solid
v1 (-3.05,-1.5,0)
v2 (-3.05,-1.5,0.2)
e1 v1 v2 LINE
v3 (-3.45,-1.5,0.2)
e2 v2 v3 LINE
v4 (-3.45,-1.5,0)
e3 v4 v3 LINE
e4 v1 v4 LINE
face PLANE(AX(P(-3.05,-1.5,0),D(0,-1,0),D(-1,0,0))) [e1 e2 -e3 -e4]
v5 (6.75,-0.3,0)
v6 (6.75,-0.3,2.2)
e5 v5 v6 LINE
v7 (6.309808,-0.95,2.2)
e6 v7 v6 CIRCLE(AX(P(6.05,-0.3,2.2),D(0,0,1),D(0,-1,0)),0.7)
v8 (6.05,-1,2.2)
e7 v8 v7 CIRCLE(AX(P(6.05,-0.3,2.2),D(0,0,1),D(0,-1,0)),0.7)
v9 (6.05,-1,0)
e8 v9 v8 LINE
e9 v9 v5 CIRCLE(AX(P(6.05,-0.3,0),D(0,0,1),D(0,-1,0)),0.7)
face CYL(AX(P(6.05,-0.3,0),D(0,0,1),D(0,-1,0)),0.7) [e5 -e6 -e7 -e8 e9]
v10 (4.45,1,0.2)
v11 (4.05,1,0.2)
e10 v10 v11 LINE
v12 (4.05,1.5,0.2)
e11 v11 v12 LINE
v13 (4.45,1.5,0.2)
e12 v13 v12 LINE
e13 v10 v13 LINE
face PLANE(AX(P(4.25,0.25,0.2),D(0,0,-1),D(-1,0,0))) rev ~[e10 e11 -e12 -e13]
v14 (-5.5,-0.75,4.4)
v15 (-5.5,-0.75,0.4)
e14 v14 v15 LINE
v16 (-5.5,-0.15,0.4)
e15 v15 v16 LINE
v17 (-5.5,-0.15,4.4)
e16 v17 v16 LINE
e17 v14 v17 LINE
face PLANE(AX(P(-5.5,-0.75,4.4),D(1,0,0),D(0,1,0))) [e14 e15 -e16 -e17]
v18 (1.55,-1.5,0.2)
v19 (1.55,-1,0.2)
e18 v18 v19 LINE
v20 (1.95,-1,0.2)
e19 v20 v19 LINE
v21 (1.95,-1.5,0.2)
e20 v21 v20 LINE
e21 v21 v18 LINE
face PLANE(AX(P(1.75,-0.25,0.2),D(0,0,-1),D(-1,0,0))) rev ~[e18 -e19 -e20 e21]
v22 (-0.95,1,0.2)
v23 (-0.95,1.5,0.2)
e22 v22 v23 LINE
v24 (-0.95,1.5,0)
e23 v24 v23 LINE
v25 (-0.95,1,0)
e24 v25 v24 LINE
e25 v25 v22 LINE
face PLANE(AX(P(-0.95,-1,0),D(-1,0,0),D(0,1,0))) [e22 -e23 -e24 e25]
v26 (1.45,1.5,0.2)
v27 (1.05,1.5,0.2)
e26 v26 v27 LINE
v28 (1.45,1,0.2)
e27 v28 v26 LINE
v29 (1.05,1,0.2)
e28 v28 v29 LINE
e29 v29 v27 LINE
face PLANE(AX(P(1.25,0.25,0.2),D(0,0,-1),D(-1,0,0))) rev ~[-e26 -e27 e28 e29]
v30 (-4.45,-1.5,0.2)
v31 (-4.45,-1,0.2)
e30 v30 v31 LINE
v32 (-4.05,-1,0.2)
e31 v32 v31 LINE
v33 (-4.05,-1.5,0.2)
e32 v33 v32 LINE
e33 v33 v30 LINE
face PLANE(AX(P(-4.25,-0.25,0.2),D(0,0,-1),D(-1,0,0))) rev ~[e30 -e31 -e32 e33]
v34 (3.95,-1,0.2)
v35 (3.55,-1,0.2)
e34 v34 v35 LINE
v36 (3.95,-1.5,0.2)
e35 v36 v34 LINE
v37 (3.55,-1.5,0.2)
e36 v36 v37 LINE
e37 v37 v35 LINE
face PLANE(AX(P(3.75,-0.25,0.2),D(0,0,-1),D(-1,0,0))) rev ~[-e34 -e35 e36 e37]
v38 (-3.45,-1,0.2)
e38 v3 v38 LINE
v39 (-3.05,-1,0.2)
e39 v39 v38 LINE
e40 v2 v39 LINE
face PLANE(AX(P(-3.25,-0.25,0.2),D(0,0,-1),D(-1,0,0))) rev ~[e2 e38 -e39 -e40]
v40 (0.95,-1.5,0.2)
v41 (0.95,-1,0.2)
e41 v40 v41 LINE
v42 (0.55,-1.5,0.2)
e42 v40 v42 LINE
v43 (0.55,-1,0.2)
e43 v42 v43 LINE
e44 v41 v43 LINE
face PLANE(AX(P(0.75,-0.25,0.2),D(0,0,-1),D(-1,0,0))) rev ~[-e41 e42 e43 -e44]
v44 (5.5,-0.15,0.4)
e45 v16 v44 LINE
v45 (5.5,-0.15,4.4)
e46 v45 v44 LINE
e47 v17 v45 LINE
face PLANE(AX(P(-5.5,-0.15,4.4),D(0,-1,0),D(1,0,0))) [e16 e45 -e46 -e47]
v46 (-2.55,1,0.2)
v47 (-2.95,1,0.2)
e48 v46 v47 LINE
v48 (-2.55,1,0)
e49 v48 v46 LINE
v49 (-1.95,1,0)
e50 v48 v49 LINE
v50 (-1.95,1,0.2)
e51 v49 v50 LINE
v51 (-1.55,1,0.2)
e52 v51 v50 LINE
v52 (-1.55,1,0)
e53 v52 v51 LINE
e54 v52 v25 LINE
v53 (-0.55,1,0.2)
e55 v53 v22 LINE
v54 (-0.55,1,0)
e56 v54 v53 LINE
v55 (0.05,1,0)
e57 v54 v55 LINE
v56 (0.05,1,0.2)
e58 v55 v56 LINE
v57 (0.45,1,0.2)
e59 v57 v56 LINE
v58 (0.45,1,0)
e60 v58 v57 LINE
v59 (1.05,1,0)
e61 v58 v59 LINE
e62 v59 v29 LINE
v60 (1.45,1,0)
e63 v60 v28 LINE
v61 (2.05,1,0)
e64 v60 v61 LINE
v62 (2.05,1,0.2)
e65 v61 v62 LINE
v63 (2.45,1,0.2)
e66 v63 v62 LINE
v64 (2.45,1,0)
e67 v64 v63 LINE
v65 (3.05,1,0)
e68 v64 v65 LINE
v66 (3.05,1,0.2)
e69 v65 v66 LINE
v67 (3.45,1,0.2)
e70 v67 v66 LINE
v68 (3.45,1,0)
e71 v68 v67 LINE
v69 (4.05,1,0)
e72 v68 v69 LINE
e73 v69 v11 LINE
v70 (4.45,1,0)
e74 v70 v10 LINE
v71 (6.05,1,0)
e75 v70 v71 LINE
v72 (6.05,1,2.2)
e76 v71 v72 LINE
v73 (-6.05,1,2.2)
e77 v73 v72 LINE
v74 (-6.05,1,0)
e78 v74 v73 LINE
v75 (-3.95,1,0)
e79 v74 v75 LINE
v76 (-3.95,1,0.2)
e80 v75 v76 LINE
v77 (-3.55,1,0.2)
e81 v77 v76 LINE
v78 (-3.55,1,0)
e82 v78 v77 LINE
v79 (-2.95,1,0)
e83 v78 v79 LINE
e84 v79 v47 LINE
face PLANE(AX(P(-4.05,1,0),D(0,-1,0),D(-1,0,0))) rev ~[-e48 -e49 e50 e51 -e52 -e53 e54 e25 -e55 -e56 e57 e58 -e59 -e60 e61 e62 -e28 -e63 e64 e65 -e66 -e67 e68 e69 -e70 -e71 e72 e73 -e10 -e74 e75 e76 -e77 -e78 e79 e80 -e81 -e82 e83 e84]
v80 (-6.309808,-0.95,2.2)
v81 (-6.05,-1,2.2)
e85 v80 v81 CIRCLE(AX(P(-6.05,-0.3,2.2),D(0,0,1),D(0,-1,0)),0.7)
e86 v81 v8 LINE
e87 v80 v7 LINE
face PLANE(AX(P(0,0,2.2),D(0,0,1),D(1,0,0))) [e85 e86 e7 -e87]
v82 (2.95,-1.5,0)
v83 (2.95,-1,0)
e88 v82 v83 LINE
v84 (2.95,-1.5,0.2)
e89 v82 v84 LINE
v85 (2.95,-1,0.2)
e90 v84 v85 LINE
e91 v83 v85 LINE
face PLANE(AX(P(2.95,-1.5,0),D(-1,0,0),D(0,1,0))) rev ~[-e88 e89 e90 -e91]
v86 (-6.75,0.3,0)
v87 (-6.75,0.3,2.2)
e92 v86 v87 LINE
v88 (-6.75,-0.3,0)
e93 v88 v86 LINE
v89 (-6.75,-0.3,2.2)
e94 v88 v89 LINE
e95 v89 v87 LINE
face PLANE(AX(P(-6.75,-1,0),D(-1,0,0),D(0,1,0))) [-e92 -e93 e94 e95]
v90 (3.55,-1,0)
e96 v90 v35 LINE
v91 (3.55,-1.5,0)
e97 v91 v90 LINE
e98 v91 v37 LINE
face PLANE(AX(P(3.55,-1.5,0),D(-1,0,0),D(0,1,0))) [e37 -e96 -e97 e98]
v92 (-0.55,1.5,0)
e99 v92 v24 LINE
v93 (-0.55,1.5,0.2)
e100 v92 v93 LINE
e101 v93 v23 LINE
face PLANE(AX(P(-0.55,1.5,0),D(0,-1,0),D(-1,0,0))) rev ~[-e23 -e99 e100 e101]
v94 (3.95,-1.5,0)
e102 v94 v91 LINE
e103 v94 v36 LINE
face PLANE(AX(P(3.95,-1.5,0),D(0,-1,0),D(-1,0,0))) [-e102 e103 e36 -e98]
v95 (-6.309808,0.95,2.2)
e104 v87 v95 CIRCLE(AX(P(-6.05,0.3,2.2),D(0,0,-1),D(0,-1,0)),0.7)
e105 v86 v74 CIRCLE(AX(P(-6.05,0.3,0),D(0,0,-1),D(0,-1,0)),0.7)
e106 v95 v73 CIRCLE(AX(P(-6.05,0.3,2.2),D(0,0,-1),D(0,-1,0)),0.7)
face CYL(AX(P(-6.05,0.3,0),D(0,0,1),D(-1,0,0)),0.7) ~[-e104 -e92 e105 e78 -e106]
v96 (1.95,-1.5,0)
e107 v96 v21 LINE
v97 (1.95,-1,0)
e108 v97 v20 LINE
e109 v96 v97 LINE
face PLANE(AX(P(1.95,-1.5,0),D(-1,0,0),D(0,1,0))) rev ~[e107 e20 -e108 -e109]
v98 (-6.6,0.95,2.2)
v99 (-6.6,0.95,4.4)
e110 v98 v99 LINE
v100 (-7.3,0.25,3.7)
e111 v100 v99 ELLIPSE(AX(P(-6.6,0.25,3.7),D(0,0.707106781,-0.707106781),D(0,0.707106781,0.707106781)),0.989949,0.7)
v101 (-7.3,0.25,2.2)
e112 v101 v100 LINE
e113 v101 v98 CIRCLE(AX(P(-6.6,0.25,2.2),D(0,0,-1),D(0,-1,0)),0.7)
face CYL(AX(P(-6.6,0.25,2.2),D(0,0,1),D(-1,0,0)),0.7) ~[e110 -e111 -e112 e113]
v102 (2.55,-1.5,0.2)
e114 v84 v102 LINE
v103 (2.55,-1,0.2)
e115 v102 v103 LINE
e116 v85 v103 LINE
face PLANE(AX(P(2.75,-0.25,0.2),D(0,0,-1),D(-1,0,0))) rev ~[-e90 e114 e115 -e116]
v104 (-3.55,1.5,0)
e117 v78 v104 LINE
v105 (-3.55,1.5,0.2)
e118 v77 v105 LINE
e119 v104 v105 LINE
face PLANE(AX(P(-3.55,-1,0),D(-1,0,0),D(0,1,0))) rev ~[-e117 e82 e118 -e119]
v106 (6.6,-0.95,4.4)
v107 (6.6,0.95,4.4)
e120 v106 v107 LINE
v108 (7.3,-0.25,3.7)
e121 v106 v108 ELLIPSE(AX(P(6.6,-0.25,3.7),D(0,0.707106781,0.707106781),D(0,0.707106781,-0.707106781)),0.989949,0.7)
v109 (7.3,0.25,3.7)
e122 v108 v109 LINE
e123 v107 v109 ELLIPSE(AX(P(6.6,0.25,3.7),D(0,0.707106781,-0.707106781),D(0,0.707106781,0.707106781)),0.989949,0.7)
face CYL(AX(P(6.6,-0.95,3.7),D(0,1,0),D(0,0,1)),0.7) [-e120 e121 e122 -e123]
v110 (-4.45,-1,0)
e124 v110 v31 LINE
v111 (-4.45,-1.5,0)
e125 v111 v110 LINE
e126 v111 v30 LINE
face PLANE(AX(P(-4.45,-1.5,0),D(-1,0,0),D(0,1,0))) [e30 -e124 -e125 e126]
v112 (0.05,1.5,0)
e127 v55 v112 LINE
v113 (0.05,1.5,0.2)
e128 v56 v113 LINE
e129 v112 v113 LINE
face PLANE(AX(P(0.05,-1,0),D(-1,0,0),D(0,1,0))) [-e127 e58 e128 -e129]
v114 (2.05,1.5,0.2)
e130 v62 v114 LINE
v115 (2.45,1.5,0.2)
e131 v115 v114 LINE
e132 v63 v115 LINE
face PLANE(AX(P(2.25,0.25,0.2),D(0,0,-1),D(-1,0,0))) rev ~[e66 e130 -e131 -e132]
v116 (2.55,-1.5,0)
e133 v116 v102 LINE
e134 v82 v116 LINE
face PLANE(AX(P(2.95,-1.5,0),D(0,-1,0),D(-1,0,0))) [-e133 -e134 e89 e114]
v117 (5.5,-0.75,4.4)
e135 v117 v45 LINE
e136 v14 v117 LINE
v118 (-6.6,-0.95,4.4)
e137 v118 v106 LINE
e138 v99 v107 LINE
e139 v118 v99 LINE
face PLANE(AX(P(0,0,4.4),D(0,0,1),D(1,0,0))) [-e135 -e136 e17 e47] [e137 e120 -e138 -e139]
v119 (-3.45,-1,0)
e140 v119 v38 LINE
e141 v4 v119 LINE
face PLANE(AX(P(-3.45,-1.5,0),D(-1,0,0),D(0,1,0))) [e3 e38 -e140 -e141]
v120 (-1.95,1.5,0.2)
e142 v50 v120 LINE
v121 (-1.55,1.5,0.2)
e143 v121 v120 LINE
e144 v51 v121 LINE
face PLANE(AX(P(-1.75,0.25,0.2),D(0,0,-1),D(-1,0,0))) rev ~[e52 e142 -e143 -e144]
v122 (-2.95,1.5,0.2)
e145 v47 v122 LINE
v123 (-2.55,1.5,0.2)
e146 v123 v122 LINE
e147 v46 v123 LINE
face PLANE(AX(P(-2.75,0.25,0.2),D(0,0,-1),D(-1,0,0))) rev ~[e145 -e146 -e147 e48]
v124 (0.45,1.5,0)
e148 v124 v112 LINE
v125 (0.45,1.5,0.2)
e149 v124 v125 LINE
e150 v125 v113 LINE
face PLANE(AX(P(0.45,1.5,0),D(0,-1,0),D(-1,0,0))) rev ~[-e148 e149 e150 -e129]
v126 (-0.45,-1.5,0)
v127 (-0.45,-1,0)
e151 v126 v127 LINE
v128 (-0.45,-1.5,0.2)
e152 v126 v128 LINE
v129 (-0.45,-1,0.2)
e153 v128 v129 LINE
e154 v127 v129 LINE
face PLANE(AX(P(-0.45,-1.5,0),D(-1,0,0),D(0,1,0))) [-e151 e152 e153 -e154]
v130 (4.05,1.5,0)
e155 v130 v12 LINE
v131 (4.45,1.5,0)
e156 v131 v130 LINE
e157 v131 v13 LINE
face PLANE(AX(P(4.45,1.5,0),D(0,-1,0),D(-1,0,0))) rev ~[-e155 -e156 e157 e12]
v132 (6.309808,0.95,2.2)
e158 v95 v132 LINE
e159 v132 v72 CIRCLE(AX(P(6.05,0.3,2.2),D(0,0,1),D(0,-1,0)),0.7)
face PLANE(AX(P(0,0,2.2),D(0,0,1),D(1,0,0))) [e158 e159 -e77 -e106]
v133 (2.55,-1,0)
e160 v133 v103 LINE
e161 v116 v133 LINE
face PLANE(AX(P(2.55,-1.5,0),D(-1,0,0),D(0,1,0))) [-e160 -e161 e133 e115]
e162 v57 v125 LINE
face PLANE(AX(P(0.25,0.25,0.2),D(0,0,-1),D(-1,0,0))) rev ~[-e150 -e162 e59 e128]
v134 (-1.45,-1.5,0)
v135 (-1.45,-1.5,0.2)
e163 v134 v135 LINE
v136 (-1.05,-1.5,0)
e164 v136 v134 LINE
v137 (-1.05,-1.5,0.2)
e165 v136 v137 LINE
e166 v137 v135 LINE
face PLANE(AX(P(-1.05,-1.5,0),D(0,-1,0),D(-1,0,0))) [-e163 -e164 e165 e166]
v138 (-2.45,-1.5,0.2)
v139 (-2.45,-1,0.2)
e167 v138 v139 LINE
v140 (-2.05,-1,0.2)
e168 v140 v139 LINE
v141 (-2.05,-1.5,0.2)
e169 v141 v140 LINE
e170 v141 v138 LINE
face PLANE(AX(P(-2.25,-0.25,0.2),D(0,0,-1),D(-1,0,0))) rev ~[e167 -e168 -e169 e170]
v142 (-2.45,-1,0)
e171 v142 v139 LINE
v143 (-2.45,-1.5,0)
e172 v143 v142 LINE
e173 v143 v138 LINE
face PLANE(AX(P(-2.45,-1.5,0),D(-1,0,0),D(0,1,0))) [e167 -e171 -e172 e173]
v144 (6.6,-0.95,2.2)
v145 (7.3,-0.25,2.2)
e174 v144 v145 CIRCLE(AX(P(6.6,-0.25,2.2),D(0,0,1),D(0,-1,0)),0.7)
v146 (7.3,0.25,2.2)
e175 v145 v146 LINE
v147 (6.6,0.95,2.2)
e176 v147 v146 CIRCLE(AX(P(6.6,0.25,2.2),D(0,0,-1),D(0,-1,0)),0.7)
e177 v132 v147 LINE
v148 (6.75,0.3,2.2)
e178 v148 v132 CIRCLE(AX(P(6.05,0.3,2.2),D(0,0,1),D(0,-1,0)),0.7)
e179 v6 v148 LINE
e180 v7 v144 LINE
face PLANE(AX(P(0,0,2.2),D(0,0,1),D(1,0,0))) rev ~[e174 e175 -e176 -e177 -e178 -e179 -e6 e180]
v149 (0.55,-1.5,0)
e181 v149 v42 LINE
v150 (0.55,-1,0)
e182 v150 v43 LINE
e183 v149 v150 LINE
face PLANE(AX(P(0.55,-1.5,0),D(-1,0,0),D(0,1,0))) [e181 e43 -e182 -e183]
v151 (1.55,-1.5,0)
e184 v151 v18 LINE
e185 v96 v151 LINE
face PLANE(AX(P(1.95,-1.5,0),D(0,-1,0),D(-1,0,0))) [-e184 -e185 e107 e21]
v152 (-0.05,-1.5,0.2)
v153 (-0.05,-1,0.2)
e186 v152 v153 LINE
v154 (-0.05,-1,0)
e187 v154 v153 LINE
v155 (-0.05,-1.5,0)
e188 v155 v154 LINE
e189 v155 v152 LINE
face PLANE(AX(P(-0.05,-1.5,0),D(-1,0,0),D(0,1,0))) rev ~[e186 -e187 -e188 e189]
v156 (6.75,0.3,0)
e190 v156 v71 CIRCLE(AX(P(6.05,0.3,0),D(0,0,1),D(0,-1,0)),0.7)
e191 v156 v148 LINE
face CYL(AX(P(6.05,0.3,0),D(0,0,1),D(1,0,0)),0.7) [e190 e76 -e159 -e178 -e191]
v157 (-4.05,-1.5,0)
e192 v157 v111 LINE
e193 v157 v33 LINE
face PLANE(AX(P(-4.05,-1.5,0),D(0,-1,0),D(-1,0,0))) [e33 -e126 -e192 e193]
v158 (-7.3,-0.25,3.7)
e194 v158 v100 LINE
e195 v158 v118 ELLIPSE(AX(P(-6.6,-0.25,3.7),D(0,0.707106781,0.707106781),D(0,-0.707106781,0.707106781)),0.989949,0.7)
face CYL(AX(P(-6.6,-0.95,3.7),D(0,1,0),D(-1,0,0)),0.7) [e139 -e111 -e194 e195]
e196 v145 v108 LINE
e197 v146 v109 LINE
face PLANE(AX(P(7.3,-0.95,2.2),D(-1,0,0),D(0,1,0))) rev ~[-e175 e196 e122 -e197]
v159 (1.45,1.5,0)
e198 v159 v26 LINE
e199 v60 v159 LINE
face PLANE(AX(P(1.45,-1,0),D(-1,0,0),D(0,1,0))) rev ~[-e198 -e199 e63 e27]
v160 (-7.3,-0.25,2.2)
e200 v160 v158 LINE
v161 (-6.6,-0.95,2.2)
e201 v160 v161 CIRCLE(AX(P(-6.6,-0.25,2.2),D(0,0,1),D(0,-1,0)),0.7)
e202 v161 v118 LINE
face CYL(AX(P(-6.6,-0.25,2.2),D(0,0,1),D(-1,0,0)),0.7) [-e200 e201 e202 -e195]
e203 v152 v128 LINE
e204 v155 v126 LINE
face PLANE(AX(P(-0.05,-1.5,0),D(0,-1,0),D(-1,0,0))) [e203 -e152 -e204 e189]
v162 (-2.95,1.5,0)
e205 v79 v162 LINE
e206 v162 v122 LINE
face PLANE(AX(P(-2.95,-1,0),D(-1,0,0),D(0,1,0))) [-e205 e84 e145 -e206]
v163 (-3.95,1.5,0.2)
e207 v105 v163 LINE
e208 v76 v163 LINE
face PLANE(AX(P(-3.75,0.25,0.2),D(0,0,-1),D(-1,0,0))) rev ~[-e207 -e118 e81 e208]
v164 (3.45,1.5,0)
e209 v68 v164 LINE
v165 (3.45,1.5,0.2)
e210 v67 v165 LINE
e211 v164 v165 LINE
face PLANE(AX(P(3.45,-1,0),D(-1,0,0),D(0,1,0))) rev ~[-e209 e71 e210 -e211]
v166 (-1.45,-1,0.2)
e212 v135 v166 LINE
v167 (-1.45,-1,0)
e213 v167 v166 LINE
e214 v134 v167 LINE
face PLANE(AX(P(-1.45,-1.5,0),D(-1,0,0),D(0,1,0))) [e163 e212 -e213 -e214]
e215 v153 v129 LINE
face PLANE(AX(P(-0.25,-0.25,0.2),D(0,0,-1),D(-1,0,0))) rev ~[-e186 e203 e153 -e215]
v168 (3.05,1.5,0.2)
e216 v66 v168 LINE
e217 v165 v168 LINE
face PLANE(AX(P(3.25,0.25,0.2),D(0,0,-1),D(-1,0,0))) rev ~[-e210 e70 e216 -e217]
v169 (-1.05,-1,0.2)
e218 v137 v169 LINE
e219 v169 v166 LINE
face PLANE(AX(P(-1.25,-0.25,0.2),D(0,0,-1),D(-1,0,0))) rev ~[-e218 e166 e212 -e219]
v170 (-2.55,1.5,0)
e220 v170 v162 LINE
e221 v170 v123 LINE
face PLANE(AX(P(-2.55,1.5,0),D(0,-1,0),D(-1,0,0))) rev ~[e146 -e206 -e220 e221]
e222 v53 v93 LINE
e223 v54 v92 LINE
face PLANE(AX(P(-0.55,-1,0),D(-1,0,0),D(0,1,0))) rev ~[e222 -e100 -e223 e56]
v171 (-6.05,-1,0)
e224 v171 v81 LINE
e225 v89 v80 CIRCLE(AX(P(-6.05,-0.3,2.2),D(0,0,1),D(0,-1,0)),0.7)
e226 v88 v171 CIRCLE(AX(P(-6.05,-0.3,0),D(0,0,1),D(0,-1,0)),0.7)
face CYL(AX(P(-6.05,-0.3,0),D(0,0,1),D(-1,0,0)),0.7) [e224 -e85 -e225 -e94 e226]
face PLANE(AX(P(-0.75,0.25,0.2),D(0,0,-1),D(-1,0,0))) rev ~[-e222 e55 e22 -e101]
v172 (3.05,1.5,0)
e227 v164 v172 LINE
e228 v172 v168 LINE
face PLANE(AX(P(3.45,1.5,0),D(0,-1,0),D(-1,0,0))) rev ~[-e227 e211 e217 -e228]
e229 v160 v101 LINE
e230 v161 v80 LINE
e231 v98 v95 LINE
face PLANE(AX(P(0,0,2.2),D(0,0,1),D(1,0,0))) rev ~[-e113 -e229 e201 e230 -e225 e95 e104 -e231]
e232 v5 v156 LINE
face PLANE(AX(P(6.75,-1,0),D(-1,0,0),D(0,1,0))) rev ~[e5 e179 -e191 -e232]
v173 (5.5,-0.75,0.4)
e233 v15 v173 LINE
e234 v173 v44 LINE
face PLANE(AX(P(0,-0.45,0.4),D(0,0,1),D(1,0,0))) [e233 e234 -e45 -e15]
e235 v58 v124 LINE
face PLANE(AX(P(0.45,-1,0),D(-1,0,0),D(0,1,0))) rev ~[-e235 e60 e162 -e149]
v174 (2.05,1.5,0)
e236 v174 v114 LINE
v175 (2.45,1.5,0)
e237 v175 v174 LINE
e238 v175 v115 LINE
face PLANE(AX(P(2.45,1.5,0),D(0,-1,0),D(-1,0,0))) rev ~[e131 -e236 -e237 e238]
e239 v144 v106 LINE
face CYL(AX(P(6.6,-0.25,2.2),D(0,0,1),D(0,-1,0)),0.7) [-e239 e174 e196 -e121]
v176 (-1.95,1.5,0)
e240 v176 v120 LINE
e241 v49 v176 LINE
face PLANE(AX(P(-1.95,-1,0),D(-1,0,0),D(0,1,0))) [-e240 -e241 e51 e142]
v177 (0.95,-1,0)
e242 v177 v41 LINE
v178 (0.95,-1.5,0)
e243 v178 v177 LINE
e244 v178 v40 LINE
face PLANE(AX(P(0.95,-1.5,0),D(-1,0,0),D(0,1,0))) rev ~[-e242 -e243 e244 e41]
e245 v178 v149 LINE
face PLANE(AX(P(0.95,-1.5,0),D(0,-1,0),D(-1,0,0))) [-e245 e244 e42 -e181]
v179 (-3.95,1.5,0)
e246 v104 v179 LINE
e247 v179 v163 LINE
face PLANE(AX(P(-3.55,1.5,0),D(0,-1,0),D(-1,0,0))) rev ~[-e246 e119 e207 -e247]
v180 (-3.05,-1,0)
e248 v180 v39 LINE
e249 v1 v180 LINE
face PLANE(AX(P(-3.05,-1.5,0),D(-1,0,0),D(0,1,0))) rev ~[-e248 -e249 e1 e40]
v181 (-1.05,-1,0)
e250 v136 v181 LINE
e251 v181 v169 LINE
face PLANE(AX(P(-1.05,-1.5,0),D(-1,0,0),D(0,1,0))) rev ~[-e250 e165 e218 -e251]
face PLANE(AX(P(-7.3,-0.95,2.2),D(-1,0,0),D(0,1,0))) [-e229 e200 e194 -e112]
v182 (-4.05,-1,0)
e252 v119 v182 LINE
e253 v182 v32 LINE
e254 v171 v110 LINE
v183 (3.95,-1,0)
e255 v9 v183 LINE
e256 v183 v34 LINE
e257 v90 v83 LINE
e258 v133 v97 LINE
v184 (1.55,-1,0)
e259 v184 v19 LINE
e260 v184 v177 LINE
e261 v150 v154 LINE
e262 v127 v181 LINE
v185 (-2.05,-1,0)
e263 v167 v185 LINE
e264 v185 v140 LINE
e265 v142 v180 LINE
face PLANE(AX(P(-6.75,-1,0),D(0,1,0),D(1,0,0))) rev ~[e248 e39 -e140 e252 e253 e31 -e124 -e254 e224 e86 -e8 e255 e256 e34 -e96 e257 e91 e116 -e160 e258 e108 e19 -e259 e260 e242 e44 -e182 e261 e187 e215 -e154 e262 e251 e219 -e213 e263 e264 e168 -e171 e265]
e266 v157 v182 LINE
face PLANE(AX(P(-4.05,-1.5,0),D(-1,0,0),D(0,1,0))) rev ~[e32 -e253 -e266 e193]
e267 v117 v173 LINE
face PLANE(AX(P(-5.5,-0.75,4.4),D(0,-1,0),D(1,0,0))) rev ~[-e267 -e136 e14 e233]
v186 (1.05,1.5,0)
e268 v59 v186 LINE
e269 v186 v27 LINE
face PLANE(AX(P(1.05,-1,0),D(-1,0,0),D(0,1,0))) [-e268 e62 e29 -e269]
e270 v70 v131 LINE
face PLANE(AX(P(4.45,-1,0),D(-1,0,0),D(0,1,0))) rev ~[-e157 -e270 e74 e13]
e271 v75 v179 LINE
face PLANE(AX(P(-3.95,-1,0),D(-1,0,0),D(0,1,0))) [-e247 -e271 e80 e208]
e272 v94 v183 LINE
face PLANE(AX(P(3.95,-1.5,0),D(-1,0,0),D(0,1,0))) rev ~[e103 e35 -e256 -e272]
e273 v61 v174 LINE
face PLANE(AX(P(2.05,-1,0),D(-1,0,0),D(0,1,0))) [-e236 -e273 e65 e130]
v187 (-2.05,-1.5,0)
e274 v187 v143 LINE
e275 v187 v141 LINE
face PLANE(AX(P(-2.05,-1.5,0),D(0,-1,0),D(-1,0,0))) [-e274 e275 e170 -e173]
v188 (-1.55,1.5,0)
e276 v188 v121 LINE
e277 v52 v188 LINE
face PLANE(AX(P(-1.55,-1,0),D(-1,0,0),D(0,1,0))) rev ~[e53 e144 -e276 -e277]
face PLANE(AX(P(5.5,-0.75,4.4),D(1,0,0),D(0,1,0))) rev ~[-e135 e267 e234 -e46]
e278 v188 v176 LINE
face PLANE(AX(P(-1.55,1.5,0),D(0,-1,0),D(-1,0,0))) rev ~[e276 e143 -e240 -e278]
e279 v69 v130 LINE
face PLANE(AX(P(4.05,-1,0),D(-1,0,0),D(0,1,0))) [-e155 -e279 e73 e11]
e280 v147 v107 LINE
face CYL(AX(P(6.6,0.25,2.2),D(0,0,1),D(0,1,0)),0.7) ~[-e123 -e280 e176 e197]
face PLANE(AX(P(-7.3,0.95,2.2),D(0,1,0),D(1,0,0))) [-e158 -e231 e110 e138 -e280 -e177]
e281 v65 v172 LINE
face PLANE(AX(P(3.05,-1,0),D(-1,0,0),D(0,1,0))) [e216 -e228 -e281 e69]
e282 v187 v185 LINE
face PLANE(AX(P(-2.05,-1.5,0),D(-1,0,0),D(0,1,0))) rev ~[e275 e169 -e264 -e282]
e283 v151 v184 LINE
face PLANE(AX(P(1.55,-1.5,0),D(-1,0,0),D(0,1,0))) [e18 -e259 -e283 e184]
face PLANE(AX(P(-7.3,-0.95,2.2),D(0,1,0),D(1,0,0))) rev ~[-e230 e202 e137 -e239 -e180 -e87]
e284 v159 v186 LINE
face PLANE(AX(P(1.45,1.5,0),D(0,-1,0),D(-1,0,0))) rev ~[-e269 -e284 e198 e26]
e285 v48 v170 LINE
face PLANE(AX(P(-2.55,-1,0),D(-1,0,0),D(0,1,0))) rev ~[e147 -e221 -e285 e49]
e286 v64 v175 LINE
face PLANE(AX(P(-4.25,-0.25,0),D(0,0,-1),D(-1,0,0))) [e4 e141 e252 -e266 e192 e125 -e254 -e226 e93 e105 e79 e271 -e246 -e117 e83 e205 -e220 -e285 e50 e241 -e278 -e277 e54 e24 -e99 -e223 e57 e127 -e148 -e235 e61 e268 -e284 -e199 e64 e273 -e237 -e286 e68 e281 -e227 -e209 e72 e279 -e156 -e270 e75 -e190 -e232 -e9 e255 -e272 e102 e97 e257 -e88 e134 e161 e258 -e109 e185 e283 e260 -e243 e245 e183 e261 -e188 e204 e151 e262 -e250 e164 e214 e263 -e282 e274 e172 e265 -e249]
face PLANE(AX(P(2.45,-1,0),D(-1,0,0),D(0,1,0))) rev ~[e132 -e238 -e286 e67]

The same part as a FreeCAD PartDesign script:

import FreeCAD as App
import Part
import Sketcher
from FreeCAD import Vector
Q = App.Units.Quantity


def edges_at(feature, points):
    """Names of the edges that pass closest to the given points."""
    edges = feature.Shape.Edges
    near = lambda p: min(range(len(edges)), key=lambda i: edges[i].distToShape(Part.Vertex(*p))[0])
    return sorted({f"Edge{near(p) + 1}" for p in points})

doc = App.newDocument("Part")
params = doc.addObject("Spreadsheet::Sheet", "Params")
for row, (alias, value) in enumerate([
    ("sketch1_height", "2 mm"),
    ("sketch1_width", "13.5 mm"),
    ("pad1_length", "2.2 mm"),
    ("fillet_radius", "0.7 mm"),
    ("sketch2_width", "14.6 mm"),
    ("sketch2_height", "1.9 mm"),
    ("pad2_length", "2.2 mm"),
    ("fillet2_radius", "0.7 mm"),
    ("sketch3_width", "11 mm"),
    ("sketch3_height", "0.6 mm"),
    ("pocket1_length", "4 mm"),
    ("sketch4_width", "0.4 mm"),
    ("sketch4_height", "2.5 mm"),
    ("pad3_length", "0.2 mm"),
], start=1):
    params.set(f"A{row}", alias)
    params.set(f"B{row}", "=" + value)
    params.setAlias(f"B{row}", alias)

body = doc.addObject("PartDesign::Body", "Body")

# Sketch on XY plane
sketch1 = body.newObject("Sketcher::SketchObject", "Sketch")
sketch1.AttachmentSupport = (doc.getObject("XY_Plane"), [""])
sketch1.MapMode = "FlatFace"
sketch1.addGeometry(Part.LineSegment(Vector(-6.75, 1, 0), Vector(-6.75, -1, 0)), False)
sketch1.addGeometry(Part.LineSegment(Vector(-6.75, -1, 0), Vector(6.75, -1, 0)), False)
sketch1.addGeometry(Part.LineSegment(Vector(6.75, -1, 0), Vector(6.75, 1, 0)), False)
sketch1.addGeometry(Part.LineSegment(Vector(6.75, 1, 0), Vector(-6.75, 1, 0)), False)
sketch1.addConstraint(Sketcher.Constraint("Coincident", 0, 2, 1, 1))
sketch1.addConstraint(Sketcher.Constraint("Coincident", 1, 2, 2, 1))
sketch1.addConstraint(Sketcher.Constraint("Coincident", 2, 2, 3, 1))
sketch1.addConstraint(Sketcher.Constraint("Coincident", 3, 2, 0, 1))
sketch1.addConstraint(Sketcher.Constraint("Vertical", 0))
sketch1.addConstraint(Sketcher.Constraint("Horizontal", 1))
sketch1.addConstraint(Sketcher.Constraint("Vertical", 2))
sketch1.addConstraint(Sketcher.Constraint("Horizontal", 3))
sketch1.addConstraint(Sketcher.Constraint("Symmetric", 0, 2, 2, 2, -1, 1))
sketch1.addConstraint(Sketcher.Constraint("DistanceY", 0, 2, 0, 1, Q("2 mm")))
sketch1.addConstraint(Sketcher.Constraint("DistanceX", 1, 1, 1, 2, Q("13.5 mm")))
sketch1.setExpression("Constraints[9]", "Params.sketch1_height")
sketch1.setExpression("Constraints[10]", "Params.sketch1_width")
pad1 = body.newObject("PartDesign::Pad", "Pad")
pad1.Profile = sketch1
pad1.setExpression("Length", "Params.pad1_length")
doc.recompute()

fillet = body.newObject("PartDesign::Fillet", "Fillet")
fillet.Base = (pad1, edges_at(pad1, [
    (6.75, -1, 1.1),
    (-6.75, -1, 1.1),
    (-6.75, 1, 1.1),
    (6.75, 1, 1.1),
]))
fillet.setExpression("Radius", "Params.fillet_radius")

# Sketch on XY plane
sketch2 = body.newObject("Sketcher::SketchObject", "Sketch001")
sketch2.AttachmentSupport = (doc.getObject("XY_Plane"), [""])
sketch2.MapMode = "FlatFace"
sketch2.AttachmentOffset = App.Placement(Vector(0, 0, 2.2), App.Rotation())
sketch2.addGeometry(Part.LineSegment(Vector(-7.3, 0.95, 0), Vector(-7.3, -0.95, 0)), False)
sketch2.addGeometry(Part.LineSegment(Vector(-7.3, -0.95, 0), Vector(7.3, -0.95, 0)), False)
sketch2.addGeometry(Part.LineSegment(Vector(7.3, -0.95, 0), Vector(7.3, 0.95, 0)), False)
sketch2.addGeometry(Part.LineSegment(Vector(7.3, 0.95, 0), Vector(-7.3, 0.95, 0)), False)
sketch2.addConstraint(Sketcher.Constraint("Coincident", 0, 2, 1, 1))
sketch2.addConstraint(Sketcher.Constraint("Coincident", 1, 2, 2, 1))
sketch2.addConstraint(Sketcher.Constraint("Coincident", 2, 2, 3, 1))
sketch2.addConstraint(Sketcher.Constraint("Coincident", 3, 2, 0, 1))
sketch2.addConstraint(Sketcher.Constraint("Vertical", 0))
sketch2.addConstraint(Sketcher.Constraint("Horizontal", 1))
sketch2.addConstraint(Sketcher.Constraint("Vertical", 2))
sketch2.addConstraint(Sketcher.Constraint("Horizontal", 3))
sketch2.addConstraint(Sketcher.Constraint("Symmetric", 0, 2, 2, 2, -1, 1))
sketch2.addConstraint(Sketcher.Constraint("DistanceX", 1, 1, 1, 2, Q("14.6 mm")))
sketch2.addConstraint(Sketcher.Constraint("DistanceY", 0, 2, 0, 1, Q("1.9 mm")))
sketch2.setExpression("Constraints[9]", "Params.sketch2_width")
sketch2.setExpression("Constraints[10]", "Params.sketch2_height")
pad2 = body.newObject("PartDesign::Pad", "Pad001")
pad2.Profile = sketch2
pad2.setExpression("Length", "Params.pad2_length")
doc.recompute()

fillet2 = body.newObject("PartDesign::Fillet", "Fillet001")
fillet2.Base = (pad2, edges_at(pad2, [
    (7.3, 0.95, 3.3),
    (7.3, 0, 4.4),
    (7.3, -0.95, 3.3),
    (-7.3, -0.95, 3.3),
    (-7.3, 0, 4.4),
    (-7.3, 0.95, 3.3),
]))
fillet2.setExpression("Radius", "Params.fillet2_radius")

# Sketch on XY plane
sketch3 = body.newObject("Sketcher::SketchObject", "Sketch002")
sketch3.AttachmentSupport = (doc.getObject("XY_Plane"), [""])
sketch3.MapMode = "FlatFace"
sketch3.AttachmentOffset = App.Placement(Vector(0, 0, 4.4), App.Rotation())
sketch3.addGeometry(Part.LineSegment(Vector(-5.5, -0.15, 0), Vector(-5.5, -0.75, 0)), False)
sketch3.addGeometry(Part.LineSegment(Vector(-5.5, -0.75, 0), Vector(5.5, -0.75, 0)), False)
sketch3.addGeometry(Part.LineSegment(Vector(5.5, -0.75, 0), Vector(5.5, -0.15, 0)), False)
sketch3.addGeometry(Part.LineSegment(Vector(5.5, -0.15, 0), Vector(-5.5, -0.15, 0)), False)
sketch3.addConstraint(Sketcher.Constraint("Coincident", 0, 2, 1, 1))
sketch3.addConstraint(Sketcher.Constraint("Coincident", 1, 2, 2, 1))
sketch3.addConstraint(Sketcher.Constraint("Coincident", 2, 2, 3, 1))
sketch3.addConstraint(Sketcher.Constraint("Coincident", 3, 2, 0, 1))
sketch3.addConstraint(Sketcher.Constraint("Vertical", 0))
sketch3.addConstraint(Sketcher.Constraint("Horizontal", 1))
sketch3.addConstraint(Sketcher.Constraint("Vertical", 2))
sketch3.addConstraint(Sketcher.Constraint("Horizontal", 3))
sketch3.addConstraint(Sketcher.Constraint("DistanceX", 1, 1, 1, 2, Q("11 mm")))
sketch3.addConstraint(Sketcher.Constraint("DistanceY", 0, 2, 0, 1, Q("0.6 mm")))
sketch3.addConstraint(Sketcher.Constraint("DistanceX", 0, 2, -1, 1, Q("5.5 mm")))
sketch3.addConstraint(Sketcher.Constraint("DistanceY", 0, 2, -1, 1, Q("0.75 mm")))
sketch3.setExpression("Constraints[8]", "Params.sketch3_width")
sketch3.setExpression("Constraints[9]", "Params.sketch3_height")
pocket1 = body.newObject("PartDesign::Pocket", "Pocket")
pocket1.Profile = sketch3
pocket1.setExpression("Length", "Params.pocket1_length")

# Sketch on XY plane
sketch4 = body.newObject("Sketcher::SketchObject", "Sketch003")
sketch4.AttachmentSupport = (doc.getObject("XY_Plane"), [""])
sketch4.MapMode = "FlatFace"
sketch4.addGeometry(Part.LineSegment(Vector(-4.05, 1, 0), Vector(-4.05, -1.5, 0)), False)
sketch4.addGeometry(Part.LineSegment(Vector(-4.05, -1.5, 0), Vector(-4.45, -1.5, 0)), False)
sketch4.addGeometry(Part.LineSegment(Vector(-4.45, -1.5, 0), Vector(-4.45, 1, 0)), False)
sketch4.addGeometry(Part.LineSegment(Vector(-4.45, 1, 0), Vector(-4.05, 1, 0)), False)
sketch4.addGeometry(Part.LineSegment(Vector(-3.05, 1, 0), Vector(-3.05, -1.5, 0)), False)
sketch4.addGeometry(Part.LineSegment(Vector(-3.05, -1.5, 0), Vector(-3.45, -1.5, 0)), False)
sketch4.addGeometry(Part.LineSegment(Vector(-3.45, -1.5, 0), Vector(-3.45, 1, 0)), False)
sketch4.addGeometry(Part.LineSegment(Vector(-3.45, 1, 0), Vector(-3.05, 1, 0)), False)
sketch4.addGeometry(Part.LineSegment(Vector(-2.05, 1, 0), Vector(-2.05, -1.5, 0)), False)
sketch4.addGeometry(Part.LineSegment(Vector(-2.05, -1.5, 0), Vector(-2.45, -1.5, 0)), False)
sketch4.addGeometry(Part.LineSegment(Vector(-2.45, -1.5, 0), Vector(-2.45, 1, 0)), False)
sketch4.addGeometry(Part.LineSegment(Vector(-2.45, 1, 0), Vector(-2.05, 1, 0)), False)
sketch4.addGeometry(Part.LineSegment(Vector(-1.05, 1, 0), Vector(-1.05, -1.5, 0)), False)
sketch4.addGeometry(Part.LineSegment(Vector(-1.05, -1.5, 0), Vector(-1.45, -1.5, 0)), False)
sketch4.addGeometry(Part.LineSegment(Vector(-1.45, -1.5, 0), Vector(-1.45, 1, 0)), False)
sketch4.addGeometry(Part.LineSegment(Vector(-1.45, 1, 0), Vector(-1.05, 1, 0)), False)
sketch4.addGeometry(Part.LineSegment(Vector(-0.05, 1, 0), Vector(-0.05, -1.5, 0)), False)
sketch4.addGeometry(Part.LineSegment(Vector(-0.05, -1.5, 0), Vector(-0.45, -1.5, 0)), False)
sketch4.addGeometry(Part.LineSegment(Vector(-0.45, -1.5, 0), Vector(-0.45, 1, 0)), False)
sketch4.addGeometry(Part.LineSegment(Vector(-0.45, 1, 0), Vector(-0.05, 1, 0)), False)
sketch4.addGeometry(Part.LineSegment(Vector(0.95, 1, 0), Vector(0.95, -1.5, 0)), False)
sketch4.addGeometry(Part.LineSegment(Vector(0.95, -1.5, 0), Vector(0.55, -1.5, 0)), False)
sketch4.addGeometry(Part.LineSegment(Vector(0.55, -1.5, 0), Vector(0.55, 1, 0)), False)
sketch4.addGeometry(Part.LineSegment(Vector(0.55, 1, 0), Vector(0.95, 1, 0)), False)
sketch4.addGeometry(Part.LineSegment(Vector(1.95, 1, 0), Vector(1.95, -1.5, 0)), False)
sketch4.addGeometry(Part.LineSegment(Vector(1.95, -1.5, 0), Vector(1.55, -1.5, 0)), False)
sketch4.addGeometry(Part.LineSegment(Vector(1.55, -1.5, 0), Vector(1.55, 1, 0)), False)
sketch4.addGeometry(Part.LineSegment(Vector(1.55, 1, 0), Vector(1.95, 1, 0)), False)
sketch4.addGeometry(Part.LineSegment(Vector(2.95, 1, 0), Vector(2.95, -1.5, 0)), False)
sketch4.addGeometry(Part.LineSegment(Vector(2.95, -1.5, 0), Vector(2.55, -1.5, 0)), False)
sketch4.addGeometry(Part.LineSegment(Vector(2.55, -1.5, 0), Vector(2.55, 1, 0)), False)
sketch4.addGeometry(Part.LineSegment(Vector(2.55, 1, 0), Vector(2.95, 1, 0)), False)
sketch4.addGeometry(Part.LineSegment(Vector(3.95, 1, 0), Vector(3.95, -1.5, 0)), False)
sketch4.addGeometry(Part.LineSegment(Vector(3.95, -1.5, 0), Vector(3.55, -1.5, 0)), False)
sketch4.addGeometry(Part.LineSegment(Vector(3.55, -1.5, 0), Vector(3.55, 1, 0)), False)
sketch4.addGeometry(Part.LineSegment(Vector(3.55, 1, 0), Vector(3.95, 1, 0)), False)
sketch4.addGeometry(Part.LineSegment(Vector(-3.55, 1.5, 0), Vector(-3.55, -1, 0)), False)
sketch4.addGeometry(Part.LineSegment(Vector(-3.55, -1, 0), Vector(-3.95, -1, 0)), False)
sketch4.addGeometry(Part.LineSegment(Vector(-3.95, -1, 0), Vector(-3.95, 1.5, 0)), False)
sketch4.addGeometry(Part.LineSegment(Vector(-3.95, 1.5, 0), Vector(-3.55, 1.5, 0)), False)
sketch4.addGeometry(Part.LineSegment(Vector(-2.55, 1.5, 0), Vector(-2.55, -1, 0)), False)
sketch4.addGeometry(Part.LineSegment(Vector(-2.55, -1, 0), Vector(-2.95, -1, 0)), False)
sketch4.addGeometry(Part.LineSegment(Vector(-2.95, -1, 0), Vector(-2.95, 1.5, 0)), False)
sketch4.addGeometry(Part.LineSegment(Vector(-2.95, 1.5, 0), Vector(-2.55, 1.5, 0)), False)
sketch4.addGeometry(Part.LineSegment(Vector(-1.55, 1.5, 0), Vector(-1.55, -1, 0)), False)
sketch4.addGeometry(Part.LineSegment(Vector(-1.55, -1, 0), Vector(-1.95, -1, 0)), False)
sketch4.addGeometry(Part.LineSegment(Vector(-1.95, -1, 0), Vector(-1.95, 1.5, 0)), False)
sketch4.addGeometry(Part.LineSegment(Vector(-1.95, 1.5, 0), Vector(-1.55, 1.5, 0)), False)
sketch4.addGeometry(Part.LineSegment(Vector(-0.55, 1.5, 0), Vector(-0.55, -1, 0)), False)
sketch4.addGeometry(Part.LineSegment(Vector(-0.55, -1, 0), Vector(-0.95, -1, 0)), False)
sketch4.addGeometry(Part.LineSegment(Vector(-0.95, -1, 0), Vector(-0.95, 1.5, 0)), False)
sketch4.addGeometry(Part.LineSegment(Vector(-0.95, 1.5, 0), Vector(-0.55, 1.5, 0)), False)
sketch4.addGeometry(Part.LineSegment(Vector(0.45, 1.5, 0), Vector(0.45, -1, 0)), False)
sketch4.addGeometry(Part.LineSegment(Vector(0.45, -1, 0), Vector(0.05, -1, 0)), False)
sketch4.addGeometry(Part.LineSegment(Vector(0.05, -1, 0), Vector(0.05, 1.5, 0)), False)
sketch4.addGeometry(Part.LineSegment(Vector(0.05, 1.5, 0), Vector(0.45, 1.5, 0)), False)
sketch4.addGeometry(Part.LineSegment(Vector(1.45, 1.5, 0), Vector(1.45, -1, 0)), False)
sketch4.addGeometry(Part.LineSegment(Vector(1.45, -1, 0), Vector(1.05, -1, 0)), False)
sketch4.addGeometry(Part.LineSegment(Vector(1.05, -1, 0), Vector(1.05, 1.5, 0)), False)
sketch4.addGeometry(Part.LineSegment(Vector(1.05, 1.5, 0), Vector(1.45, 1.5, 0)), False)
sketch4.addGeometry(Part.LineSegment(Vector(2.45, 1.5, 0), Vector(2.45, -1, 0)), False)
sketch4.addGeometry(Part.LineSegment(Vector(2.45, -1, 0), Vector(2.05, -1, 0)), False)
sketch4.addGeometry(Part.LineSegment(Vector(2.05, -1, 0), Vector(2.05, 1.5, 0)), False)
sketch4.addGeometry(Part.LineSegment(Vector(2.05, 1.5, 0), Vector(2.45, 1.5, 0)), False)
sketch4.addGeometry(Part.LineSegment(Vector(3.45, 1.5, 0), Vector(3.45, -1, 0)), False)
sketch4.addGeometry(Part.LineSegment(Vector(3.45, -1, 0), Vector(3.05, -1, 0)), False)
sketch4.addGeometry(Part.LineSegment(Vector(3.05, -1, 0), Vector(3.05, 1.5, 0)), False)
sketch4.addGeometry(Part.LineSegment(Vector(3.05, 1.5, 0), Vector(3.45, 1.5, 0)), False)
sketch4.addGeometry(Part.LineSegment(Vector(4.45, 1.5, 0), Vector(4.45, -1, 0)), False)
sketch4.addGeometry(Part.LineSegment(Vector(4.45, -1, 0), Vector(4.05, -1, 0)), False)
sketch4.addGeometry(Part.LineSegment(Vector(4.05, -1, 0), Vector(4.05, 1.5, 0)), False)
sketch4.addGeometry(Part.LineSegment(Vector(4.05, 1.5, 0), Vector(4.45, 1.5, 0)), False)
sketch4.addConstraint(Sketcher.Constraint("Coincident", 0, 2, 1, 1))
sketch4.addConstraint(Sketcher.Constraint("Coincident", 1, 2, 2, 1))
sketch4.addConstraint(Sketcher.Constraint("Coincident", 2, 2, 3, 1))
sketch4.addConstraint(Sketcher.Constraint("Coincident", 3, 2, 0, 1))
sketch4.addConstraint(Sketcher.Constraint("Coincident", 4, 2, 5, 1))
sketch4.addConstraint(Sketcher.Constraint("Coincident", 5, 2, 6, 1))
sketch4.addConstraint(Sketcher.Constraint("Coincident", 6, 2, 7, 1))
sketch4.addConstraint(Sketcher.Constraint("Coincident", 7, 2, 4, 1))
sketch4.addConstraint(Sketcher.Constraint("Coincident", 8, 2, 9, 1))
sketch4.addConstraint(Sketcher.Constraint("Coincident", 9, 2, 10, 1))
sketch4.addConstraint(Sketcher.Constraint("Coincident", 10, 2, 11, 1))
sketch4.addConstraint(Sketcher.Constraint("Coincident", 11, 2, 8, 1))
sketch4.addConstraint(Sketcher.Constraint("Coincident", 12, 2, 13, 1))
sketch4.addConstraint(Sketcher.Constraint("Coincident", 13, 2, 14, 1))
sketch4.addConstraint(Sketcher.Constraint("Coincident", 14, 2, 15, 1))
sketch4.addConstraint(Sketcher.Constraint("Coincident", 15, 2, 12, 1))
sketch4.addConstraint(Sketcher.Constraint("Coincident", 16, 2, 17, 1))
sketch4.addConstraint(Sketcher.Constraint("Coincident", 17, 2, 18, 1))
sketch4.addConstraint(Sketcher.Constraint("Coincident", 18, 2, 19, 1))
sketch4.addConstraint(Sketcher.Constraint("Coincident", 19, 2, 16, 1))
sketch4.addConstraint(Sketcher.Constraint("Coincident", 20, 2, 21, 1))
sketch4.addConstraint(Sketcher.Constraint("Coincident", 21, 2, 22, 1))
sketch4.addConstraint(Sketcher.Constraint("Coincident", 22, 2, 23, 1))
sketch4.addConstraint(Sketcher.Constraint("Coincident", 23, 2, 20, 1))
sketch4.addConstraint(Sketcher.Constraint("Coincident", 24, 2, 25, 1))
sketch4.addConstraint(Sketcher.Constraint("Coincident", 25, 2, 26, 1))
sketch4.addConstraint(Sketcher.Constraint("Coincident", 26, 2, 27, 1))
sketch4.addConstraint(Sketcher.Constraint("Coincident", 27, 2, 24, 1))
sketch4.addConstraint(Sketcher.Constraint("Coincident", 28, 2, 29, 1))
sketch4.addConstraint(Sketcher.Constraint("Coincident", 29, 2, 30, 1))
sketch4.addConstraint(Sketcher.Constraint("Coincident", 30, 2, 31, 1))
sketch4.addConstraint(Sketcher.Constraint("Coincident", 31, 2, 28, 1))
sketch4.addConstraint(Sketcher.Constraint("Coincident", 32, 2, 33, 1))
sketch4.addConstraint(Sketcher.Constraint("Coincident", 33, 2, 34, 1))
sketch4.addConstraint(Sketcher.Constraint("Coincident", 34, 2, 35, 1))
sketch4.addConstraint(Sketcher.Constraint("Coincident", 35, 2, 32, 1))
sketch4.addConstraint(Sketcher.Constraint("Coincident", 36, 2, 37, 1))
sketch4.addConstraint(Sketcher.Constraint("Coincident", 37, 2, 38, 1))
sketch4.addConstraint(Sketcher.Constraint("Coincident", 38, 2, 39, 1))
sketch4.addConstraint(Sketcher.Constraint("Coincident", 39, 2, 36, 1))
sketch4.addConstraint(Sketcher.Constraint("Coincident", 40, 2, 41, 1))
sketch4.addConstraint(Sketcher.Constraint("Coincident", 41, 2, 42, 1))
sketch4.addConstraint(Sketcher.Constraint("Coincident", 42, 2, 43, 1))
sketch4.addConstraint(Sketcher.Constraint("Coincident", 43, 2, 40, 1))
sketch4.addConstraint(Sketcher.Constraint("Coincident", 44, 2, 45, 1))
sketch4.addConstraint(Sketcher.Constraint("Coincident", 45, 2, 46, 1))
sketch4.addConstraint(Sketcher.Constraint("Coincident", 46, 2, 47, 1))
sketch4.addConstraint(Sketcher.Constraint("Coincident", 47, 2, 44, 1))
sketch4.addConstraint(Sketcher.Constraint("Coincident", 48, 2, 49, 1))
sketch4.addConstraint(Sketcher.Constraint("Coincident", 49, 2, 50, 1))
sketch4.addConstraint(Sketcher.Constraint("Coincident", 50, 2, 51, 1))
sketch4.addConstraint(Sketcher.Constraint("Coincident", 51, 2, 48, 1))
sketch4.addConstraint(Sketcher.Constraint("Coincident", 52, 2, 53, 1))
sketch4.addConstraint(Sketcher.Constraint("Coincident", 53, 2, 54, 1))
sketch4.addConstraint(Sketcher.Constraint("Coincident", 54, 2, 55, 1))
sketch4.addConstraint(Sketcher.Constraint("Coincident", 55, 2, 52, 1))
sketch4.addConstraint(Sketcher.Constraint("Coincident", 56, 2, 57, 1))
sketch4.addConstraint(Sketcher.Constraint("Coincident", 57, 2, 58, 1))
sketch4.addConstraint(Sketcher.Constraint("Coincident", 58, 2, 59, 1))
sketch4.addConstraint(Sketcher.Constraint("Coincident", 59, 2, 56, 1))
sketch4.addConstraint(Sketcher.Constraint("Coincident", 60, 2, 61, 1))
sketch4.addConstraint(Sketcher.Constraint("Coincident", 61, 2, 62, 1))
sketch4.addConstraint(Sketcher.Constraint("Coincident", 62, 2, 63, 1))
sketch4.addConstraint(Sketcher.Constraint("Coincident", 63, 2, 60, 1))
sketch4.addConstraint(Sketcher.Constraint("Coincident", 64, 2, 65, 1))
sketch4.addConstraint(Sketcher.Constraint("Coincident", 65, 2, 66, 1))
sketch4.addConstraint(Sketcher.Constraint("Coincident", 66, 2, 67, 1))
sketch4.addConstraint(Sketcher.Constraint("Coincident", 67, 2, 64, 1))
sketch4.addConstraint(Sketcher.Constraint("Coincident", 68, 2, 69, 1))
sketch4.addConstraint(Sketcher.Constraint("Coincident", 69, 2, 70, 1))
sketch4.addConstraint(Sketcher.Constraint("Coincident", 70, 2, 71, 1))
sketch4.addConstraint(Sketcher.Constraint("Coincident", 71, 2, 68, 1))
sketch4.addConstraint(Sketcher.Constraint("Vertical", 0))
sketch4.addConstraint(Sketcher.Constraint("Horizontal", 1))
sketch4.addConstraint(Sketcher.Constraint("Vertical", 2))
sketch4.addConstraint(Sketcher.Constraint("Horizontal", 3))
sketch4.addConstraint(Sketcher.Constraint("Vertical", 4))
sketch4.addConstraint(Sketcher.Constraint("Horizontal", 5))
sketch4.addConstraint(Sketcher.Constraint("Vertical", 6))
sketch4.addConstraint(Sketcher.Constraint("Horizontal", 7))
sketch4.addConstraint(Sketcher.Constraint("Vertical", 8))
sketch4.addConstraint(Sketcher.Constraint("Horizontal", 9))
sketch4.addConstraint(Sketcher.Constraint("Vertical", 10))
sketch4.addConstraint(Sketcher.Constraint("Horizontal", 11))
sketch4.addConstraint(Sketcher.Constraint("Vertical", 12))
sketch4.addConstraint(Sketcher.Constraint("Horizontal", 13))
sketch4.addConstraint(Sketcher.Constraint("Vertical", 14))
sketch4.addConstraint(Sketcher.Constraint("Horizontal", 15))
sketch4.addConstraint(Sketcher.Constraint("Vertical", 16))
sketch4.addConstraint(Sketcher.Constraint("Horizontal", 17))
sketch4.addConstraint(Sketcher.Constraint("Vertical", 18))
sketch4.addConstraint(Sketcher.Constraint("Horizontal", 19))
sketch4.addConstraint(Sketcher.Constraint("Vertical", 20))
sketch4.addConstraint(Sketcher.Constraint("Horizontal", 21))
sketch4.addConstraint(Sketcher.Constraint("Vertical", 22))
sketch4.addConstraint(Sketcher.Constraint("Horizontal", 23))
sketch4.addConstraint(Sketcher.Constraint("Vertical", 24))
sketch4.addConstraint(Sketcher.Constraint("Horizontal", 25))
sketch4.addConstraint(Sketcher.Constraint("Vertical", 26))
sketch4.addConstraint(Sketcher.Constraint("Horizontal", 27))
sketch4.addConstraint(Sketcher.Constraint("Vertical", 28))
sketch4.addConstraint(Sketcher.Constraint("Horizontal", 29))
sketch4.addConstraint(Sketcher.Constraint("Vertical", 30))
sketch4.addConstraint(Sketcher.Constraint("Horizontal", 31))
sketch4.addConstraint(Sketcher.Constraint("Vertical", 32))
sketch4.addConstraint(Sketcher.Constraint("Horizontal", 33))
sketch4.addConstraint(Sketcher.Constraint("Vertical", 34))
sketch4.addConstraint(Sketcher.Constraint("Horizontal", 35))
sketch4.addConstraint(Sketcher.Constraint("Vertical", 36))
sketch4.addConstraint(Sketcher.Constraint("Horizontal", 37))
sketch4.addConstraint(Sketcher.Constraint("Vertical", 38))
sketch4.addConstraint(Sketcher.Constraint("Horizontal", 39))
sketch4.addConstraint(Sketcher.Constraint("Vertical", 40))
sketch4.addConstraint(Sketcher.Constraint("Horizontal", 41))
sketch4.addConstraint(Sketcher.Constraint("Vertical", 42))
sketch4.addConstraint(Sketcher.Constraint("Horizontal", 43))
sketch4.addConstraint(Sketcher.Constraint("Vertical", 44))
sketch4.addConstraint(Sketcher.Constraint("Horizontal", 45))
sketch4.addConstraint(Sketcher.Constraint("Vertical", 46))
sketch4.addConstraint(Sketcher.Constraint("Horizontal", 47))
sketch4.addConstraint(Sketcher.Constraint("Vertical", 48))
sketch4.addConstraint(Sketcher.Constraint("Horizontal", 49))
sketch4.addConstraint(Sketcher.Constraint("Vertical", 50))
sketch4.addConstraint(Sketcher.Constraint("Horizontal", 51))
sketch4.addConstraint(Sketcher.Constraint("Vertical", 52))
sketch4.addConstraint(Sketcher.Constraint("Horizontal", 53))
sketch4.addConstraint(Sketcher.Constraint("Vertical", 54))
sketch4.addConstraint(Sketcher.Constraint("Horizontal", 55))
sketch4.addConstraint(Sketcher.Constraint("Vertical", 56))
sketch4.addConstraint(Sketcher.Constraint("Horizontal", 57))
sketch4.addConstraint(Sketcher.Constraint("Vertical", 58))
sketch4.addConstraint(Sketcher.Constraint("Horizontal", 59))
sketch4.addConstraint(Sketcher.Constraint("Vertical", 60))
sketch4.addConstraint(Sketcher.Constraint("Horizontal", 61))
sketch4.addConstraint(Sketcher.Constraint("Vertical", 62))
sketch4.addConstraint(Sketcher.Constraint("Horizontal", 63))
sketch4.addConstraint(Sketcher.Constraint("Vertical", 64))
sketch4.addConstraint(Sketcher.Constraint("Horizontal", 65))
sketch4.addConstraint(Sketcher.Constraint("Vertical", 66))
sketch4.addConstraint(Sketcher.Constraint("Horizontal", 67))
sketch4.addConstraint(Sketcher.Constraint("Vertical", 68))
sketch4.addConstraint(Sketcher.Constraint("Horizontal", 69))
sketch4.addConstraint(Sketcher.Constraint("Vertical", 70))
sketch4.addConstraint(Sketcher.Constraint("Horizontal", 71))
sketch4.addConstraint(Sketcher.Constraint("Symmetric", 34, 2, 36, 2, -1, 1))
sketch4.addConstraint(Sketcher.Constraint("Symmetric", 32, 2, 38, 2, -1, 1))
sketch4.addConstraint(Sketcher.Constraint("Symmetric", 30, 2, 40, 2, -1, 1))
sketch4.addConstraint(Sketcher.Constraint("Symmetric", 28, 2, 42, 2, -1, 1))
sketch4.addConstraint(Sketcher.Constraint("Symmetric", 26, 2, 44, 2, -1, 1))
sketch4.addConstraint(Sketcher.Constraint("Symmetric", 24, 2, 46, 2, -1, 1))
sketch4.addConstraint(Sketcher.Constraint("Symmetric", 22, 2, 48, 2, -1, 1))
sketch4.addConstraint(Sketcher.Constraint("Symmetric", 20, 2, 50, 2, -1, 1))
sketch4.addConstraint(Sketcher.Constraint("Symmetric", 18, 2, 52, 2, -1, 1))
sketch4.addConstraint(Sketcher.Constraint("Symmetric", 16, 2, 54, 2, -1, 1))
sketch4.addConstraint(Sketcher.Constraint("Symmetric", 14, 2, 56, 2, -1, 1))
sketch4.addConstraint(Sketcher.Constraint("Symmetric", 12, 2, 58, 2, -1, 1))
sketch4.addConstraint(Sketcher.Constraint("Symmetric", 10, 2, 60, 2, -1, 1))
sketch4.addConstraint(Sketcher.Constraint("Symmetric", 8, 2, 62, 2, -1, 1))
sketch4.addConstraint(Sketcher.Constraint("Symmetric", 6, 2, 64, 2, -1, 1))
sketch4.addConstraint(Sketcher.Constraint("Symmetric", 4, 2, 66, 2, -1, 1))
sketch4.addConstraint(Sketcher.Constraint("Symmetric", 2, 2, 68, 2, -1, 1))
sketch4.addConstraint(Sketcher.Constraint("Symmetric", 0, 2, 70, 2, -1, 1))
sketch4.addConstraint(Sketcher.Constraint("Horizontal", 1, 2, 4, 2))
sketch4.addConstraint(Sketcher.Constraint("Horizontal", 3, 2, 6, 2))
sketch4.addConstraint(Sketcher.Constraint("Horizontal", 5, 2, 8, 2))
sketch4.addConstraint(Sketcher.Constraint("Horizontal", 7, 2, 10, 2))
sketch4.addConstraint(Sketcher.Constraint("Horizontal", 9, 2, 12, 2))
sketch4.addConstraint(Sketcher.Constraint("Horizontal", 11, 2, 14, 2))
sketch4.addConstraint(Sketcher.Constraint("Horizontal", 13, 2, 16, 2))
sketch4.addConstraint(Sketcher.Constraint("Horizontal", 15, 2, 18, 2))
sketch4.addConstraint(Sketcher.Constraint("Horizontal", 17, 2, 20, 2))
sketch4.addConstraint(Sketcher.Constraint("Horizontal", 19, 2, 22, 2))
sketch4.addConstraint(Sketcher.Constraint("Horizontal", 21, 2, 24, 2))
sketch4.addConstraint(Sketcher.Constraint("Horizontal", 23, 2, 26, 2))
sketch4.addConstraint(Sketcher.Constraint("Horizontal", 25, 2, 28, 2))
sketch4.addConstraint(Sketcher.Constraint("Horizontal", 27, 2, 30, 2))
sketch4.addConstraint(Sketcher.Constraint("Horizontal", 29, 2, 32, 2))
sketch4.addConstraint(Sketcher.Constraint("Horizontal", 31, 2, 34, 2))
sketch4.addConstraint(Sketcher.Constraint("Equal", 3, 5))
sketch4.addConstraint(Sketcher.Constraint("Equal", 7, 9))
sketch4.addConstraint(Sketcher.Constraint("Equal", 11, 13))
sketch4.addConstraint(Sketcher.Constraint("Equal", 15, 17))
sketch4.addConstraint(Sketcher.Constraint("Equal", 19, 21))
sketch4.addConstraint(Sketcher.Constraint("Equal", 23, 25))
sketch4.addConstraint(Sketcher.Constraint("Equal", 27, 29))
sketch4.addConstraint(Sketcher.Constraint("Equal", 31, 33))
sketch4.addConstraint(Sketcher.Constraint("DistanceX", 1, 2, 1, 1, Q("0.4 mm")))
sketch4.addConstraint(Sketcher.Constraint("DistanceY", 0, 2, 0, 1, Q("2.5 mm")))
sketch4.addConstraint(Sketcher.Constraint("DistanceY", -1, 1, 2, 2, Q("1 mm")))
sketch4.addConstraint(Sketcher.Constraint("DistanceX", 0, 2, -1, 1, Q("4.05 mm")))
sketch4.addConstraint(Sketcher.Constraint("DistanceX", 4, 2, -1, 1, Q("3.05 mm")))
sketch4.addConstraint(Sketcher.Constraint("DistanceX", 8, 2, -1, 1, Q("2.05 mm")))
sketch4.addConstraint(Sketcher.Constraint("DistanceX", 12, 2, -1, 1, Q("1.05 mm")))
sketch4.addConstraint(Sketcher.Constraint("DistanceX", 16, 2, -1, 1, Q("0.05 mm")))
sketch4.addConstraint(Sketcher.Constraint("DistanceX", -1, 1, 20, 2, Q("0.95 mm")))
sketch4.addConstraint(Sketcher.Constraint("DistanceX", -1, 1, 24, 2, Q("1.95 mm")))
sketch4.addConstraint(Sketcher.Constraint("DistanceX", -1, 1, 28, 2, Q("2.95 mm")))
sketch4.addConstraint(Sketcher.Constraint("DistanceX", -1, 1, 32, 2, Q("3.95 mm")))
sketch4.setExpression("Constraints[186]", "Params.sketch4_width")
sketch4.setExpression("Constraints[187]", "Params.sketch4_height")
pad3 = body.newObject("PartDesign::Pad", "Pad002")
pad3.Profile = sketch4
pad3.setExpression("Length", "Params.pad3_length")

doc.recompute()
